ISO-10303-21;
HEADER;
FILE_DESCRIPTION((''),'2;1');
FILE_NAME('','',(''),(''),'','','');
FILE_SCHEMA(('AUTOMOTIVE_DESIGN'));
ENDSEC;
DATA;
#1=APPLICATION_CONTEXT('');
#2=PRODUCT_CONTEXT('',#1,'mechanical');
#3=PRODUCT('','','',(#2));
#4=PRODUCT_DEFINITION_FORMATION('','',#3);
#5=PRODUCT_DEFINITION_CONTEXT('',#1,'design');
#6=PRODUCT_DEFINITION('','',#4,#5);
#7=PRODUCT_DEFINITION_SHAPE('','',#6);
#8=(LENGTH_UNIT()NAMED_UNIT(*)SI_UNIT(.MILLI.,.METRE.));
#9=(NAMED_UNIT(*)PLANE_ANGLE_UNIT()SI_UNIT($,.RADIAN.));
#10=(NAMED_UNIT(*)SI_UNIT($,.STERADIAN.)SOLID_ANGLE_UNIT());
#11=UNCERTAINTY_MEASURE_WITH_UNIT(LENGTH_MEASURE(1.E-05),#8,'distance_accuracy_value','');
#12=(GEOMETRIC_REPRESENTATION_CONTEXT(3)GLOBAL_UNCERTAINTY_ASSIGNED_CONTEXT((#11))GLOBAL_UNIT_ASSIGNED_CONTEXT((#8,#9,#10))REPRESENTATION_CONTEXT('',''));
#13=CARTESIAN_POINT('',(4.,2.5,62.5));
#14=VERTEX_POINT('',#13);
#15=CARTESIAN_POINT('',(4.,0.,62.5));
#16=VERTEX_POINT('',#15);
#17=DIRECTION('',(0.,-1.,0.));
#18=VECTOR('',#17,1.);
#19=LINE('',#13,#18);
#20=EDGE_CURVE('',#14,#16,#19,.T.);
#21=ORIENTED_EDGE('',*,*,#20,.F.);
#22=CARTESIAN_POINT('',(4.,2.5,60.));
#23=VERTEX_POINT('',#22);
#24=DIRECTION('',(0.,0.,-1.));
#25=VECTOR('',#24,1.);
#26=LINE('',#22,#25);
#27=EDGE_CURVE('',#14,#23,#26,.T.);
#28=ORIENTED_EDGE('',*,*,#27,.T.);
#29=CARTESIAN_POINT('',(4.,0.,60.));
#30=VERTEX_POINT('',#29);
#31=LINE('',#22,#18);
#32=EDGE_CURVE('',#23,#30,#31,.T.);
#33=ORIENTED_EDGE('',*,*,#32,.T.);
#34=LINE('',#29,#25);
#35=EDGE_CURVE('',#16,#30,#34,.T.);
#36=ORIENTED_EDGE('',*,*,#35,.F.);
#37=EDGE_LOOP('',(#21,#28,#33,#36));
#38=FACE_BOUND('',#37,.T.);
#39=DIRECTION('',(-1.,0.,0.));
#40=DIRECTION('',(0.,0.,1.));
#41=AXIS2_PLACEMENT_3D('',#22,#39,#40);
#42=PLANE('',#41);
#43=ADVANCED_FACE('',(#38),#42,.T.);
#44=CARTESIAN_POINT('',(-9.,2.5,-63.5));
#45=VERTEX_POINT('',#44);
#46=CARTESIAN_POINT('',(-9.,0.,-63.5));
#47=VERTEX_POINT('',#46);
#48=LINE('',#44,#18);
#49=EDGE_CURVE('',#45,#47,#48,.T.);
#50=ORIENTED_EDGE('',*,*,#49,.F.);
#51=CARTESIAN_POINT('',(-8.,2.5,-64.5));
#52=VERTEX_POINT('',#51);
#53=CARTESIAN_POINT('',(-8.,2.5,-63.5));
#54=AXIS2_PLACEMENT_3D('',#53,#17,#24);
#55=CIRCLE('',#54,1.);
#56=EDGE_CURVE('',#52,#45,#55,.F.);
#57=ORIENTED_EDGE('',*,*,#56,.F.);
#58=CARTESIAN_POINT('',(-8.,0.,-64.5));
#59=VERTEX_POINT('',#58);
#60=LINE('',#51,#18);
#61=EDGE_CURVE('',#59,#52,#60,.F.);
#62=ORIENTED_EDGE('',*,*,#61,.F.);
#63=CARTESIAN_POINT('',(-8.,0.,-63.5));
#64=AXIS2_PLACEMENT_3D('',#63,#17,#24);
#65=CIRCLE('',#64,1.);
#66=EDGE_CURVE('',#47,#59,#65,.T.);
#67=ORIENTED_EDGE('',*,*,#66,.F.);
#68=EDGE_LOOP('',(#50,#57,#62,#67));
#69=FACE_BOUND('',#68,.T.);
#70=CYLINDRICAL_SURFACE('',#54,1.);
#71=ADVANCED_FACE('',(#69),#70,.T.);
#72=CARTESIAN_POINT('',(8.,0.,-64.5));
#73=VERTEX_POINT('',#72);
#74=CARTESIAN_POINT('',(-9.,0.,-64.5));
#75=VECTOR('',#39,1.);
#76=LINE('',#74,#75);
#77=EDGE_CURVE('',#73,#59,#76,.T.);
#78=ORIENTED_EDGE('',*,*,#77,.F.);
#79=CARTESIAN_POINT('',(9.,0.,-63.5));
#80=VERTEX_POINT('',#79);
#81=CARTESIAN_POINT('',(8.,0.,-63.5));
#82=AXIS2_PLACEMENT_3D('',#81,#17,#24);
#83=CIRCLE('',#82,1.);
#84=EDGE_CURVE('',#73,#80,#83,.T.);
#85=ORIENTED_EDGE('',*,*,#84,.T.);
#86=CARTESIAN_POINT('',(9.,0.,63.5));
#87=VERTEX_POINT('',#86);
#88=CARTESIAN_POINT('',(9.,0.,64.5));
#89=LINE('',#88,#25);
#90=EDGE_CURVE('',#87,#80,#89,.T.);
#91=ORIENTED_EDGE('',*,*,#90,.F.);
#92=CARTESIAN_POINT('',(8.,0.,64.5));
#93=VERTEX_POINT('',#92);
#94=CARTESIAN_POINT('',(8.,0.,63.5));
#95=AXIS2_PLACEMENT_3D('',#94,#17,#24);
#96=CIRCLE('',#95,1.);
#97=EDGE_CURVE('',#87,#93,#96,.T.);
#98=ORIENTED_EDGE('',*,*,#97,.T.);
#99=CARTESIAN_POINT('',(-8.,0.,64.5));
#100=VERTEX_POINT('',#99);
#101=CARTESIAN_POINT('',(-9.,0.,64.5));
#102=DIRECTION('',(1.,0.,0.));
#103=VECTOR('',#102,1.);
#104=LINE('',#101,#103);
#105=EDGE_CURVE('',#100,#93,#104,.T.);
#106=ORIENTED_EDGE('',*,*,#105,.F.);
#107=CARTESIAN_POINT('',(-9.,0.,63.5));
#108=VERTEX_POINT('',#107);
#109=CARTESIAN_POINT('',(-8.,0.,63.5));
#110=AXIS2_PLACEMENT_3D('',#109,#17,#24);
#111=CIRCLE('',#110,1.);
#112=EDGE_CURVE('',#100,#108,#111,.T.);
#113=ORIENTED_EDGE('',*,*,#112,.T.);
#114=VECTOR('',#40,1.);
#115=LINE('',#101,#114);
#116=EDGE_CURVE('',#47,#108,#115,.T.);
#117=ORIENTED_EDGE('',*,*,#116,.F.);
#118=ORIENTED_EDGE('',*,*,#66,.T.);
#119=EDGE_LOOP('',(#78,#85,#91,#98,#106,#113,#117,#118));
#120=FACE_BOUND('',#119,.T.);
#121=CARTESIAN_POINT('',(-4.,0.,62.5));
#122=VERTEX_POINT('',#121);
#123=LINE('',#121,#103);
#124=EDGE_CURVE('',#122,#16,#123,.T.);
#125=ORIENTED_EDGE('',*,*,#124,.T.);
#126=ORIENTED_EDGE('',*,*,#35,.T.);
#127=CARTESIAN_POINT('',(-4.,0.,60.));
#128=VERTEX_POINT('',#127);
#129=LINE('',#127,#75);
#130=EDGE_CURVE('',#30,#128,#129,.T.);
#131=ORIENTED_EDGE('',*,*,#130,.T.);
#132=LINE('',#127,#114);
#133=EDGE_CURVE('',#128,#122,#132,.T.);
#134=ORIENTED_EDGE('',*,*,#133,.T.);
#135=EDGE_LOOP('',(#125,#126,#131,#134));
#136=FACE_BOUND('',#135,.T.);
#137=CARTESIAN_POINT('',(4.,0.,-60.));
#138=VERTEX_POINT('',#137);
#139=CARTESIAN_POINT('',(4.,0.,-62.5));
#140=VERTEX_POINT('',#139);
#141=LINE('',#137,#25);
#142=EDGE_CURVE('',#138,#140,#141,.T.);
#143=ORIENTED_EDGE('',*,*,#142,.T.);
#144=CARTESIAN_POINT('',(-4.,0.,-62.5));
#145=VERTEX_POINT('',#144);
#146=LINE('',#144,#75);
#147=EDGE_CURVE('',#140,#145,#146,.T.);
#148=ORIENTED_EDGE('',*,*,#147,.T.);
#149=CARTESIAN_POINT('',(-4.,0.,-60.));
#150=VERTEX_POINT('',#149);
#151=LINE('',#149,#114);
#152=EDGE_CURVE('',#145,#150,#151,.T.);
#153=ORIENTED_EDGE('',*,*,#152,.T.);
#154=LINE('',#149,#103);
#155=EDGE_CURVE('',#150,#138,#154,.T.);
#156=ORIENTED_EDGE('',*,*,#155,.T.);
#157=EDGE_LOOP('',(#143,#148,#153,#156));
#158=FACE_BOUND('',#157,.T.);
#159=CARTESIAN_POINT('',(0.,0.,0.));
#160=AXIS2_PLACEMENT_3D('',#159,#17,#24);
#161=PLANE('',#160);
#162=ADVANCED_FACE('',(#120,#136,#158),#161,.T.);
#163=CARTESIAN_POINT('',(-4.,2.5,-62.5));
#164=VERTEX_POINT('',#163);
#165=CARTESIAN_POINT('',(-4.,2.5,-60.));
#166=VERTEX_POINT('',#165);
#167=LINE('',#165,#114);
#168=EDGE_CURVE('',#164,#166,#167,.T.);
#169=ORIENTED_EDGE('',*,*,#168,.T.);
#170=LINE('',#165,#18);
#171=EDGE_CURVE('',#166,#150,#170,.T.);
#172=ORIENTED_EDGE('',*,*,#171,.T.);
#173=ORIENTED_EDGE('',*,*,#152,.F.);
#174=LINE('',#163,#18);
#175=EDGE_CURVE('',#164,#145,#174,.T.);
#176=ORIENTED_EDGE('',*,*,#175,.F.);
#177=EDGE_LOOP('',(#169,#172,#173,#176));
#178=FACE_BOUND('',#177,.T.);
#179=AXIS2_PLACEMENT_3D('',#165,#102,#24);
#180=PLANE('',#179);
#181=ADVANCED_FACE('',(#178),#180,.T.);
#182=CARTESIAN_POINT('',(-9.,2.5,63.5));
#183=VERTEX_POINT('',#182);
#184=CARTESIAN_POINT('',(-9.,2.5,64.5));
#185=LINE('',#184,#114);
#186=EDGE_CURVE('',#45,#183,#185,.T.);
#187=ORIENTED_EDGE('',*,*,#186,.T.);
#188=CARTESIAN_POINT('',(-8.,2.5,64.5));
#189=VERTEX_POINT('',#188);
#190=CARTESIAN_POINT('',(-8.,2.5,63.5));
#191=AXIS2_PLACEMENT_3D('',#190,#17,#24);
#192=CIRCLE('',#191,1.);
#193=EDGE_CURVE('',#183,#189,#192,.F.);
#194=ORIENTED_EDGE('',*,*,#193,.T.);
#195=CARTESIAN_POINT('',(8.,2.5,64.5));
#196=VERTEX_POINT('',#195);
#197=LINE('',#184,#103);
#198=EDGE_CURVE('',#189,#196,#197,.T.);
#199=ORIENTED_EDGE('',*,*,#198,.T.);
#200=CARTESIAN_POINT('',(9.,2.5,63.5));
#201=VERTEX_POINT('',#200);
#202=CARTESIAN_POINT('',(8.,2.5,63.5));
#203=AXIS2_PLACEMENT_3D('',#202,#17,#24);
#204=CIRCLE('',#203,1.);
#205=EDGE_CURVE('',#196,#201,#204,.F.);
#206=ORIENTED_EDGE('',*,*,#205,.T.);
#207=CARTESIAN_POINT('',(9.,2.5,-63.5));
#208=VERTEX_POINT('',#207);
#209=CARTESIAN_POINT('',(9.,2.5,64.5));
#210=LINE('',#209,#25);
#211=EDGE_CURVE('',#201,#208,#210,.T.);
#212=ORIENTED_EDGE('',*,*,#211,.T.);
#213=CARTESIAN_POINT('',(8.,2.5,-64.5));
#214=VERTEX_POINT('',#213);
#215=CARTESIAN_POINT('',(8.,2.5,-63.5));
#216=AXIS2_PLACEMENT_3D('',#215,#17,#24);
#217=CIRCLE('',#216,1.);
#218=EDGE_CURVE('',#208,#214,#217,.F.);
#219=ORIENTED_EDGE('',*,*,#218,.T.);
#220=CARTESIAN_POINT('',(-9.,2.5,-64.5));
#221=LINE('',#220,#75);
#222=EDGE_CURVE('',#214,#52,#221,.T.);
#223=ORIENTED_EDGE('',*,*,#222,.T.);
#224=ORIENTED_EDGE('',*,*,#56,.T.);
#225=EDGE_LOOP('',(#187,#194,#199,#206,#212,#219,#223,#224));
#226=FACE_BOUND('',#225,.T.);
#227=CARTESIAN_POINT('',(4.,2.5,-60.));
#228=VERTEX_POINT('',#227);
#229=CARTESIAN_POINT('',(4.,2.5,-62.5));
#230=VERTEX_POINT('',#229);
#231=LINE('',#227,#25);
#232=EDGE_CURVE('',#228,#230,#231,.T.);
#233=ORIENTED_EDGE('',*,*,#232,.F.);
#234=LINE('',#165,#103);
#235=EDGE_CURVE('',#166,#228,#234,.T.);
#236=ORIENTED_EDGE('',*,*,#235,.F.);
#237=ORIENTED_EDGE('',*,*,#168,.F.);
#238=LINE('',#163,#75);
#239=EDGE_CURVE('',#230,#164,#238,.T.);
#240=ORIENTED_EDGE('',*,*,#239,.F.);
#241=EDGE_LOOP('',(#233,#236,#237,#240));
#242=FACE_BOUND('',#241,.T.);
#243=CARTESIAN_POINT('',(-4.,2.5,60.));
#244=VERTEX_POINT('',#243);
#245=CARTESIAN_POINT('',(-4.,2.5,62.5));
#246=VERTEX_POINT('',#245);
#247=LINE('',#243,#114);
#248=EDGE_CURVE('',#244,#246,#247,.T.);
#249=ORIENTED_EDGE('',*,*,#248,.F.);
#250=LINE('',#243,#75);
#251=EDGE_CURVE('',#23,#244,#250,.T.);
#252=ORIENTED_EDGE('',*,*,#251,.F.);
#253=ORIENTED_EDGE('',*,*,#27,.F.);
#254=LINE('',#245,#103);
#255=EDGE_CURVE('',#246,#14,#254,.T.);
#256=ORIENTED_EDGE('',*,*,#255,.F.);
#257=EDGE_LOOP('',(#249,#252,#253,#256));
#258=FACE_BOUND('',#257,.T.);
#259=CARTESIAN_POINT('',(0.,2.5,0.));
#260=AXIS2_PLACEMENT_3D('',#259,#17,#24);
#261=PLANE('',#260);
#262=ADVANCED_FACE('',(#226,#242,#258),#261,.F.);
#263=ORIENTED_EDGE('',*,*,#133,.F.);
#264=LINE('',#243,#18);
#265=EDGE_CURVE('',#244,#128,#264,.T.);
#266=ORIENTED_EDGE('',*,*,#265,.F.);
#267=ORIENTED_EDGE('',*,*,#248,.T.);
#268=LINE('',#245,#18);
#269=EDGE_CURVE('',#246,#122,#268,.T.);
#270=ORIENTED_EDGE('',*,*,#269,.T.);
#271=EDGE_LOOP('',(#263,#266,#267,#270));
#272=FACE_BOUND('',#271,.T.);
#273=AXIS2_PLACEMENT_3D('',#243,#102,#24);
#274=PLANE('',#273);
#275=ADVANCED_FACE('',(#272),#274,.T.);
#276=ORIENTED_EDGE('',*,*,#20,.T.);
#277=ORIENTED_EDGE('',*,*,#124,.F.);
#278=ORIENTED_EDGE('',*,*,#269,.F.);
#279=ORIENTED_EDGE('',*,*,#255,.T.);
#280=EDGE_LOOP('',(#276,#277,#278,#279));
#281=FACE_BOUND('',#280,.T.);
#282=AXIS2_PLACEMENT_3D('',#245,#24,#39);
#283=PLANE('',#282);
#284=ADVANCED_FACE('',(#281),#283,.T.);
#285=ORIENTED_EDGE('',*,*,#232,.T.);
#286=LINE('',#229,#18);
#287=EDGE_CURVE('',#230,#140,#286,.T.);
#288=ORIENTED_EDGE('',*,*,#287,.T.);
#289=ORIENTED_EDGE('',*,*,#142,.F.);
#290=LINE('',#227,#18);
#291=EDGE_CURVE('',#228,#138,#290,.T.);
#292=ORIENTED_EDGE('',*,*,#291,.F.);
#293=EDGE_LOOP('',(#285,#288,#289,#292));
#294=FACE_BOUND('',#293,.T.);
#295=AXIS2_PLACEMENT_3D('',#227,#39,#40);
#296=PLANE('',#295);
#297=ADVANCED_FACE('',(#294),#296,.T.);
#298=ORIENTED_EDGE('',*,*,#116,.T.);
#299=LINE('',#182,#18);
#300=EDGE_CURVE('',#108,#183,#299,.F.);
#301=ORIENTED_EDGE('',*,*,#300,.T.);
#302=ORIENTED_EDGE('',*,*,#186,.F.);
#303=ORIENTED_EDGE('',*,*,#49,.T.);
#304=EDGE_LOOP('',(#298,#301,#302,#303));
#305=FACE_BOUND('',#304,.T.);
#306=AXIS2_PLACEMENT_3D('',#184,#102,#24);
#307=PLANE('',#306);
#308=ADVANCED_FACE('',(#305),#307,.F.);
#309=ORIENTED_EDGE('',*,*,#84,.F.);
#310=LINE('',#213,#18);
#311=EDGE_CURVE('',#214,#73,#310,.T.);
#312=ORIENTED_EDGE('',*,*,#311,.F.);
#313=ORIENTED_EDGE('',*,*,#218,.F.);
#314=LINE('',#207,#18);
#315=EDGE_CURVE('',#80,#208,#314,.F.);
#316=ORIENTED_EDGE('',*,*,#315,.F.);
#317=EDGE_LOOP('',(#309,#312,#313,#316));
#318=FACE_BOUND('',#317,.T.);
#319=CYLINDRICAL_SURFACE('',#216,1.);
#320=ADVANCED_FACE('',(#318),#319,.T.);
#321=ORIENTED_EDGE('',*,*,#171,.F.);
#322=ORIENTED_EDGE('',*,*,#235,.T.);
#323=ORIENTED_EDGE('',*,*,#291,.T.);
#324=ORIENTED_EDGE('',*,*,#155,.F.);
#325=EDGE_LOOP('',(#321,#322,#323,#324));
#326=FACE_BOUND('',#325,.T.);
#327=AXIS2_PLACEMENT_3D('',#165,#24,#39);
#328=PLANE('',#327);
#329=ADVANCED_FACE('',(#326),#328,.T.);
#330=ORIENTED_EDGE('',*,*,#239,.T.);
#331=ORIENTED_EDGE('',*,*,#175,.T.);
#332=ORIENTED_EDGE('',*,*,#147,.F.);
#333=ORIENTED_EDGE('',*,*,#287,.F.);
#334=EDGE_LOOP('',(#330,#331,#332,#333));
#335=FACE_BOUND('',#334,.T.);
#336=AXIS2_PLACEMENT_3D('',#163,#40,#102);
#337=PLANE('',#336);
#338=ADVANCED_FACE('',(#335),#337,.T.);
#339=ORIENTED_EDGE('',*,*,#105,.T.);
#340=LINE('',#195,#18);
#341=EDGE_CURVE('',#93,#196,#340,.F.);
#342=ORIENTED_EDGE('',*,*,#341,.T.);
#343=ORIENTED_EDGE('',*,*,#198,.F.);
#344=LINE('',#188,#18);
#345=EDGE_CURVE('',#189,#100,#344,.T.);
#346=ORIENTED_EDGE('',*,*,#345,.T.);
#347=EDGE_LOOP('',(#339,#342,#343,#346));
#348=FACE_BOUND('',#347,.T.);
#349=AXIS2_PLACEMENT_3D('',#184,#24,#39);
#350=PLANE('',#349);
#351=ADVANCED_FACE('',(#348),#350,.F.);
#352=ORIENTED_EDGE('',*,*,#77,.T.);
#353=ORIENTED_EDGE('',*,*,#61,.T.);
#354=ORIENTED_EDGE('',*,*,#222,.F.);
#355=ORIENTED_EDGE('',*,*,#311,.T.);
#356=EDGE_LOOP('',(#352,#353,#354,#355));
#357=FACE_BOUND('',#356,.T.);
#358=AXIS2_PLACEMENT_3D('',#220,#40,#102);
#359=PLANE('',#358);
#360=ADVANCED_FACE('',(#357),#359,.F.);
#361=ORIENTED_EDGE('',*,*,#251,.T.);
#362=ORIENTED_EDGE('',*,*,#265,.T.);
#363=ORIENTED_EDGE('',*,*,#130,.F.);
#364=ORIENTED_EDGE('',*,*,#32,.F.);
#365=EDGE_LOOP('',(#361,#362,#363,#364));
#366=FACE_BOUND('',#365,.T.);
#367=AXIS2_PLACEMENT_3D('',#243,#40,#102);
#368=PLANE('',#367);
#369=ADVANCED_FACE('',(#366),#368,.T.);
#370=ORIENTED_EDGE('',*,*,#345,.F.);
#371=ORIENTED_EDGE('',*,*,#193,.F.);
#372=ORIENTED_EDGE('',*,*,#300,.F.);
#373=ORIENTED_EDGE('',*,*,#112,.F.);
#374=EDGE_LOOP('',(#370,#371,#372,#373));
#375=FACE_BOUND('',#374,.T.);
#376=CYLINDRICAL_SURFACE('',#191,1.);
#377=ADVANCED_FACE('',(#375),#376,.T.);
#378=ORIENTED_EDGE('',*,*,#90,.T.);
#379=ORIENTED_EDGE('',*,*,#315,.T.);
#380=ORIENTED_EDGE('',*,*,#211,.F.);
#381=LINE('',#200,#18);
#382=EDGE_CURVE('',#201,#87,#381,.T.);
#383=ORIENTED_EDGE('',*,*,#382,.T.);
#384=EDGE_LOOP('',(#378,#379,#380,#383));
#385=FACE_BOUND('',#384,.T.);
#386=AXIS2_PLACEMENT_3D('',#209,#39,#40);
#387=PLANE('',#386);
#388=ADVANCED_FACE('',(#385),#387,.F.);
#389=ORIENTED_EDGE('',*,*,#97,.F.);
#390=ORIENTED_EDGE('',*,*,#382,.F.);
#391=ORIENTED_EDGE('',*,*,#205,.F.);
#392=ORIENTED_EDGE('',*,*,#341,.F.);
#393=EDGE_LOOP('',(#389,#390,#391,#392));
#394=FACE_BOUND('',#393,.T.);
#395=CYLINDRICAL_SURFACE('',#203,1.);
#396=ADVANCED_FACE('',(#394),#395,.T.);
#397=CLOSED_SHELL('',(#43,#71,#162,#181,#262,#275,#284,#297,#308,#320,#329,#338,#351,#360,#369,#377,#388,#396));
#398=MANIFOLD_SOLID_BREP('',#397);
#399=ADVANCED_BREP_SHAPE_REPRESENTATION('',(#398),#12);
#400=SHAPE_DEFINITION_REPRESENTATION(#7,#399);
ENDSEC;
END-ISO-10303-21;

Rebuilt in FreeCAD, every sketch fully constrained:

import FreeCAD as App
import Part
import Sketcher


def edges_at(feature, points):
    """Names of the edges that pass closest to the given points."""
    edges = feature.Shape.Edges
    near = lambda p: min(range(len(edges)), key=lambda i: edges[i].distToShape(Part.Vertex(*p))[0])
    return sorted({f"Edge{near(p) + 1}" for p in points})


def add_polygon(sketch, points):
    """Adds a closed chain of lines whose ends are joined by coincident constraints."""
    first, n = sketch.GeometryCount, len(points)
    for a, b in zip(points, points[1:] + points[:1]):
        sketch.addGeometry(Part.LineSegment(App.Vector(*a, 0), App.Vector(*b, 0)), False)
    for i in range(n):
        sketch.addConstraint(Sketcher.Constraint("Coincident", first + i, 2, first + (i + 1) % n, 1))

doc = App.newDocument("Part")
body = doc.addObject("PartDesign::Body", "Body")

sketch1 = doc.addObject("Sketcher::SketchObject", "Sketch")
body.addObject(sketch1)
sketch1.AttachmentSupport = (doc.XZ_Plane, [""])
sketch1.MapMode = "FlatFace"
add_polygon(sketch1, [(-9, -64.5), (-9, 64.5), (9, 64.5), (9, -64.5)])
add_polygon(sketch1, [(4, 62.5), (-4, 62.5), (-4, 60), (4, 60)])
add_polygon(sketch1, [(4, -60), (-4, -60), (-4, -62.5), (4, -62.5)])
sketch1.addConstraint(Sketcher.Constraint("Vertical", 0))
sketch1.addConstraint(Sketcher.Constraint("Horizontal", 1))
sketch1.addConstraint(Sketcher.Constraint("Vertical", 2))
sketch1.addConstraint(Sketcher.Constraint("Horizontal", 3))
sketch1.addConstraint(Sketcher.Constraint("Horizontal", 4))
sketch1.addConstraint(Sketcher.Constraint("Vertical", 5))
sketch1.addConstraint(Sketcher.Constraint("Horizontal", 6))
sketch1.addConstraint(Sketcher.Constraint("Vertical", 7))
sketch1.addConstraint(Sketcher.Constraint("Horizontal", 8))
sketch1.addConstraint(Sketcher.Constraint("Vertical", 9))
sketch1.addConstraint(Sketcher.Constraint("Horizontal", 10))
sketch1.addConstraint(Sketcher.Constraint("Vertical", 11))
sketch1.addConstraint(Sketcher.Constraint("Symmetric", 0, 2, 2, 2, -1, 1))
sketch1.addConstraint(Sketcher.Constraint("Symmetric", 6, 2, 8, 2, -1, 1))
sketch1.addConstraint(Sketcher.Constraint("Symmetric", 4, 2, 10, 2, -1, 1))
sketch1.addConstraint(Sketcher.Constraint("Vertical", 5, 2, 8, 2))
sketch1.addConstraint(Sketcher.Constraint("DistanceX", 1, 1, 1, 2, 18.0))
sketch1.addConstraint(Sketcher.Constraint("DistanceX", 4, 2, 4, 1, 8.0))
sketch1.addConstraint(Sketcher.Constraint("DistanceY", 0, 1, 0, 2, 129.0))
sketch1.addConstraint(Sketcher.Constraint("DistanceY", 5, 2, 5, 1, 2.5))
sketch1.addConstraint(Sketcher.Constraint("DistanceY", -1, 1, 5, 2, 60.0))
pad1 = doc.addObject("PartDesign::Pad", "Pad")
body.addObject(pad1)
pad1.Profile = sketch1
pad1.Length = 2.5
pad1.Reversed = True
doc.recompute()

fillet = doc.addObject("PartDesign::Fillet", "Fillet")
body.addObject(fillet)
fillet.Base = (pad1, edges_at(pad1, [
    (9, 1.25, 64.5),
    (-9, 1.25, 64.5),
    (-9, 1.25, -64.5),
    (9, 1.25, -64.5),
]))
fillet.Radius = 1

doc.recompute()
